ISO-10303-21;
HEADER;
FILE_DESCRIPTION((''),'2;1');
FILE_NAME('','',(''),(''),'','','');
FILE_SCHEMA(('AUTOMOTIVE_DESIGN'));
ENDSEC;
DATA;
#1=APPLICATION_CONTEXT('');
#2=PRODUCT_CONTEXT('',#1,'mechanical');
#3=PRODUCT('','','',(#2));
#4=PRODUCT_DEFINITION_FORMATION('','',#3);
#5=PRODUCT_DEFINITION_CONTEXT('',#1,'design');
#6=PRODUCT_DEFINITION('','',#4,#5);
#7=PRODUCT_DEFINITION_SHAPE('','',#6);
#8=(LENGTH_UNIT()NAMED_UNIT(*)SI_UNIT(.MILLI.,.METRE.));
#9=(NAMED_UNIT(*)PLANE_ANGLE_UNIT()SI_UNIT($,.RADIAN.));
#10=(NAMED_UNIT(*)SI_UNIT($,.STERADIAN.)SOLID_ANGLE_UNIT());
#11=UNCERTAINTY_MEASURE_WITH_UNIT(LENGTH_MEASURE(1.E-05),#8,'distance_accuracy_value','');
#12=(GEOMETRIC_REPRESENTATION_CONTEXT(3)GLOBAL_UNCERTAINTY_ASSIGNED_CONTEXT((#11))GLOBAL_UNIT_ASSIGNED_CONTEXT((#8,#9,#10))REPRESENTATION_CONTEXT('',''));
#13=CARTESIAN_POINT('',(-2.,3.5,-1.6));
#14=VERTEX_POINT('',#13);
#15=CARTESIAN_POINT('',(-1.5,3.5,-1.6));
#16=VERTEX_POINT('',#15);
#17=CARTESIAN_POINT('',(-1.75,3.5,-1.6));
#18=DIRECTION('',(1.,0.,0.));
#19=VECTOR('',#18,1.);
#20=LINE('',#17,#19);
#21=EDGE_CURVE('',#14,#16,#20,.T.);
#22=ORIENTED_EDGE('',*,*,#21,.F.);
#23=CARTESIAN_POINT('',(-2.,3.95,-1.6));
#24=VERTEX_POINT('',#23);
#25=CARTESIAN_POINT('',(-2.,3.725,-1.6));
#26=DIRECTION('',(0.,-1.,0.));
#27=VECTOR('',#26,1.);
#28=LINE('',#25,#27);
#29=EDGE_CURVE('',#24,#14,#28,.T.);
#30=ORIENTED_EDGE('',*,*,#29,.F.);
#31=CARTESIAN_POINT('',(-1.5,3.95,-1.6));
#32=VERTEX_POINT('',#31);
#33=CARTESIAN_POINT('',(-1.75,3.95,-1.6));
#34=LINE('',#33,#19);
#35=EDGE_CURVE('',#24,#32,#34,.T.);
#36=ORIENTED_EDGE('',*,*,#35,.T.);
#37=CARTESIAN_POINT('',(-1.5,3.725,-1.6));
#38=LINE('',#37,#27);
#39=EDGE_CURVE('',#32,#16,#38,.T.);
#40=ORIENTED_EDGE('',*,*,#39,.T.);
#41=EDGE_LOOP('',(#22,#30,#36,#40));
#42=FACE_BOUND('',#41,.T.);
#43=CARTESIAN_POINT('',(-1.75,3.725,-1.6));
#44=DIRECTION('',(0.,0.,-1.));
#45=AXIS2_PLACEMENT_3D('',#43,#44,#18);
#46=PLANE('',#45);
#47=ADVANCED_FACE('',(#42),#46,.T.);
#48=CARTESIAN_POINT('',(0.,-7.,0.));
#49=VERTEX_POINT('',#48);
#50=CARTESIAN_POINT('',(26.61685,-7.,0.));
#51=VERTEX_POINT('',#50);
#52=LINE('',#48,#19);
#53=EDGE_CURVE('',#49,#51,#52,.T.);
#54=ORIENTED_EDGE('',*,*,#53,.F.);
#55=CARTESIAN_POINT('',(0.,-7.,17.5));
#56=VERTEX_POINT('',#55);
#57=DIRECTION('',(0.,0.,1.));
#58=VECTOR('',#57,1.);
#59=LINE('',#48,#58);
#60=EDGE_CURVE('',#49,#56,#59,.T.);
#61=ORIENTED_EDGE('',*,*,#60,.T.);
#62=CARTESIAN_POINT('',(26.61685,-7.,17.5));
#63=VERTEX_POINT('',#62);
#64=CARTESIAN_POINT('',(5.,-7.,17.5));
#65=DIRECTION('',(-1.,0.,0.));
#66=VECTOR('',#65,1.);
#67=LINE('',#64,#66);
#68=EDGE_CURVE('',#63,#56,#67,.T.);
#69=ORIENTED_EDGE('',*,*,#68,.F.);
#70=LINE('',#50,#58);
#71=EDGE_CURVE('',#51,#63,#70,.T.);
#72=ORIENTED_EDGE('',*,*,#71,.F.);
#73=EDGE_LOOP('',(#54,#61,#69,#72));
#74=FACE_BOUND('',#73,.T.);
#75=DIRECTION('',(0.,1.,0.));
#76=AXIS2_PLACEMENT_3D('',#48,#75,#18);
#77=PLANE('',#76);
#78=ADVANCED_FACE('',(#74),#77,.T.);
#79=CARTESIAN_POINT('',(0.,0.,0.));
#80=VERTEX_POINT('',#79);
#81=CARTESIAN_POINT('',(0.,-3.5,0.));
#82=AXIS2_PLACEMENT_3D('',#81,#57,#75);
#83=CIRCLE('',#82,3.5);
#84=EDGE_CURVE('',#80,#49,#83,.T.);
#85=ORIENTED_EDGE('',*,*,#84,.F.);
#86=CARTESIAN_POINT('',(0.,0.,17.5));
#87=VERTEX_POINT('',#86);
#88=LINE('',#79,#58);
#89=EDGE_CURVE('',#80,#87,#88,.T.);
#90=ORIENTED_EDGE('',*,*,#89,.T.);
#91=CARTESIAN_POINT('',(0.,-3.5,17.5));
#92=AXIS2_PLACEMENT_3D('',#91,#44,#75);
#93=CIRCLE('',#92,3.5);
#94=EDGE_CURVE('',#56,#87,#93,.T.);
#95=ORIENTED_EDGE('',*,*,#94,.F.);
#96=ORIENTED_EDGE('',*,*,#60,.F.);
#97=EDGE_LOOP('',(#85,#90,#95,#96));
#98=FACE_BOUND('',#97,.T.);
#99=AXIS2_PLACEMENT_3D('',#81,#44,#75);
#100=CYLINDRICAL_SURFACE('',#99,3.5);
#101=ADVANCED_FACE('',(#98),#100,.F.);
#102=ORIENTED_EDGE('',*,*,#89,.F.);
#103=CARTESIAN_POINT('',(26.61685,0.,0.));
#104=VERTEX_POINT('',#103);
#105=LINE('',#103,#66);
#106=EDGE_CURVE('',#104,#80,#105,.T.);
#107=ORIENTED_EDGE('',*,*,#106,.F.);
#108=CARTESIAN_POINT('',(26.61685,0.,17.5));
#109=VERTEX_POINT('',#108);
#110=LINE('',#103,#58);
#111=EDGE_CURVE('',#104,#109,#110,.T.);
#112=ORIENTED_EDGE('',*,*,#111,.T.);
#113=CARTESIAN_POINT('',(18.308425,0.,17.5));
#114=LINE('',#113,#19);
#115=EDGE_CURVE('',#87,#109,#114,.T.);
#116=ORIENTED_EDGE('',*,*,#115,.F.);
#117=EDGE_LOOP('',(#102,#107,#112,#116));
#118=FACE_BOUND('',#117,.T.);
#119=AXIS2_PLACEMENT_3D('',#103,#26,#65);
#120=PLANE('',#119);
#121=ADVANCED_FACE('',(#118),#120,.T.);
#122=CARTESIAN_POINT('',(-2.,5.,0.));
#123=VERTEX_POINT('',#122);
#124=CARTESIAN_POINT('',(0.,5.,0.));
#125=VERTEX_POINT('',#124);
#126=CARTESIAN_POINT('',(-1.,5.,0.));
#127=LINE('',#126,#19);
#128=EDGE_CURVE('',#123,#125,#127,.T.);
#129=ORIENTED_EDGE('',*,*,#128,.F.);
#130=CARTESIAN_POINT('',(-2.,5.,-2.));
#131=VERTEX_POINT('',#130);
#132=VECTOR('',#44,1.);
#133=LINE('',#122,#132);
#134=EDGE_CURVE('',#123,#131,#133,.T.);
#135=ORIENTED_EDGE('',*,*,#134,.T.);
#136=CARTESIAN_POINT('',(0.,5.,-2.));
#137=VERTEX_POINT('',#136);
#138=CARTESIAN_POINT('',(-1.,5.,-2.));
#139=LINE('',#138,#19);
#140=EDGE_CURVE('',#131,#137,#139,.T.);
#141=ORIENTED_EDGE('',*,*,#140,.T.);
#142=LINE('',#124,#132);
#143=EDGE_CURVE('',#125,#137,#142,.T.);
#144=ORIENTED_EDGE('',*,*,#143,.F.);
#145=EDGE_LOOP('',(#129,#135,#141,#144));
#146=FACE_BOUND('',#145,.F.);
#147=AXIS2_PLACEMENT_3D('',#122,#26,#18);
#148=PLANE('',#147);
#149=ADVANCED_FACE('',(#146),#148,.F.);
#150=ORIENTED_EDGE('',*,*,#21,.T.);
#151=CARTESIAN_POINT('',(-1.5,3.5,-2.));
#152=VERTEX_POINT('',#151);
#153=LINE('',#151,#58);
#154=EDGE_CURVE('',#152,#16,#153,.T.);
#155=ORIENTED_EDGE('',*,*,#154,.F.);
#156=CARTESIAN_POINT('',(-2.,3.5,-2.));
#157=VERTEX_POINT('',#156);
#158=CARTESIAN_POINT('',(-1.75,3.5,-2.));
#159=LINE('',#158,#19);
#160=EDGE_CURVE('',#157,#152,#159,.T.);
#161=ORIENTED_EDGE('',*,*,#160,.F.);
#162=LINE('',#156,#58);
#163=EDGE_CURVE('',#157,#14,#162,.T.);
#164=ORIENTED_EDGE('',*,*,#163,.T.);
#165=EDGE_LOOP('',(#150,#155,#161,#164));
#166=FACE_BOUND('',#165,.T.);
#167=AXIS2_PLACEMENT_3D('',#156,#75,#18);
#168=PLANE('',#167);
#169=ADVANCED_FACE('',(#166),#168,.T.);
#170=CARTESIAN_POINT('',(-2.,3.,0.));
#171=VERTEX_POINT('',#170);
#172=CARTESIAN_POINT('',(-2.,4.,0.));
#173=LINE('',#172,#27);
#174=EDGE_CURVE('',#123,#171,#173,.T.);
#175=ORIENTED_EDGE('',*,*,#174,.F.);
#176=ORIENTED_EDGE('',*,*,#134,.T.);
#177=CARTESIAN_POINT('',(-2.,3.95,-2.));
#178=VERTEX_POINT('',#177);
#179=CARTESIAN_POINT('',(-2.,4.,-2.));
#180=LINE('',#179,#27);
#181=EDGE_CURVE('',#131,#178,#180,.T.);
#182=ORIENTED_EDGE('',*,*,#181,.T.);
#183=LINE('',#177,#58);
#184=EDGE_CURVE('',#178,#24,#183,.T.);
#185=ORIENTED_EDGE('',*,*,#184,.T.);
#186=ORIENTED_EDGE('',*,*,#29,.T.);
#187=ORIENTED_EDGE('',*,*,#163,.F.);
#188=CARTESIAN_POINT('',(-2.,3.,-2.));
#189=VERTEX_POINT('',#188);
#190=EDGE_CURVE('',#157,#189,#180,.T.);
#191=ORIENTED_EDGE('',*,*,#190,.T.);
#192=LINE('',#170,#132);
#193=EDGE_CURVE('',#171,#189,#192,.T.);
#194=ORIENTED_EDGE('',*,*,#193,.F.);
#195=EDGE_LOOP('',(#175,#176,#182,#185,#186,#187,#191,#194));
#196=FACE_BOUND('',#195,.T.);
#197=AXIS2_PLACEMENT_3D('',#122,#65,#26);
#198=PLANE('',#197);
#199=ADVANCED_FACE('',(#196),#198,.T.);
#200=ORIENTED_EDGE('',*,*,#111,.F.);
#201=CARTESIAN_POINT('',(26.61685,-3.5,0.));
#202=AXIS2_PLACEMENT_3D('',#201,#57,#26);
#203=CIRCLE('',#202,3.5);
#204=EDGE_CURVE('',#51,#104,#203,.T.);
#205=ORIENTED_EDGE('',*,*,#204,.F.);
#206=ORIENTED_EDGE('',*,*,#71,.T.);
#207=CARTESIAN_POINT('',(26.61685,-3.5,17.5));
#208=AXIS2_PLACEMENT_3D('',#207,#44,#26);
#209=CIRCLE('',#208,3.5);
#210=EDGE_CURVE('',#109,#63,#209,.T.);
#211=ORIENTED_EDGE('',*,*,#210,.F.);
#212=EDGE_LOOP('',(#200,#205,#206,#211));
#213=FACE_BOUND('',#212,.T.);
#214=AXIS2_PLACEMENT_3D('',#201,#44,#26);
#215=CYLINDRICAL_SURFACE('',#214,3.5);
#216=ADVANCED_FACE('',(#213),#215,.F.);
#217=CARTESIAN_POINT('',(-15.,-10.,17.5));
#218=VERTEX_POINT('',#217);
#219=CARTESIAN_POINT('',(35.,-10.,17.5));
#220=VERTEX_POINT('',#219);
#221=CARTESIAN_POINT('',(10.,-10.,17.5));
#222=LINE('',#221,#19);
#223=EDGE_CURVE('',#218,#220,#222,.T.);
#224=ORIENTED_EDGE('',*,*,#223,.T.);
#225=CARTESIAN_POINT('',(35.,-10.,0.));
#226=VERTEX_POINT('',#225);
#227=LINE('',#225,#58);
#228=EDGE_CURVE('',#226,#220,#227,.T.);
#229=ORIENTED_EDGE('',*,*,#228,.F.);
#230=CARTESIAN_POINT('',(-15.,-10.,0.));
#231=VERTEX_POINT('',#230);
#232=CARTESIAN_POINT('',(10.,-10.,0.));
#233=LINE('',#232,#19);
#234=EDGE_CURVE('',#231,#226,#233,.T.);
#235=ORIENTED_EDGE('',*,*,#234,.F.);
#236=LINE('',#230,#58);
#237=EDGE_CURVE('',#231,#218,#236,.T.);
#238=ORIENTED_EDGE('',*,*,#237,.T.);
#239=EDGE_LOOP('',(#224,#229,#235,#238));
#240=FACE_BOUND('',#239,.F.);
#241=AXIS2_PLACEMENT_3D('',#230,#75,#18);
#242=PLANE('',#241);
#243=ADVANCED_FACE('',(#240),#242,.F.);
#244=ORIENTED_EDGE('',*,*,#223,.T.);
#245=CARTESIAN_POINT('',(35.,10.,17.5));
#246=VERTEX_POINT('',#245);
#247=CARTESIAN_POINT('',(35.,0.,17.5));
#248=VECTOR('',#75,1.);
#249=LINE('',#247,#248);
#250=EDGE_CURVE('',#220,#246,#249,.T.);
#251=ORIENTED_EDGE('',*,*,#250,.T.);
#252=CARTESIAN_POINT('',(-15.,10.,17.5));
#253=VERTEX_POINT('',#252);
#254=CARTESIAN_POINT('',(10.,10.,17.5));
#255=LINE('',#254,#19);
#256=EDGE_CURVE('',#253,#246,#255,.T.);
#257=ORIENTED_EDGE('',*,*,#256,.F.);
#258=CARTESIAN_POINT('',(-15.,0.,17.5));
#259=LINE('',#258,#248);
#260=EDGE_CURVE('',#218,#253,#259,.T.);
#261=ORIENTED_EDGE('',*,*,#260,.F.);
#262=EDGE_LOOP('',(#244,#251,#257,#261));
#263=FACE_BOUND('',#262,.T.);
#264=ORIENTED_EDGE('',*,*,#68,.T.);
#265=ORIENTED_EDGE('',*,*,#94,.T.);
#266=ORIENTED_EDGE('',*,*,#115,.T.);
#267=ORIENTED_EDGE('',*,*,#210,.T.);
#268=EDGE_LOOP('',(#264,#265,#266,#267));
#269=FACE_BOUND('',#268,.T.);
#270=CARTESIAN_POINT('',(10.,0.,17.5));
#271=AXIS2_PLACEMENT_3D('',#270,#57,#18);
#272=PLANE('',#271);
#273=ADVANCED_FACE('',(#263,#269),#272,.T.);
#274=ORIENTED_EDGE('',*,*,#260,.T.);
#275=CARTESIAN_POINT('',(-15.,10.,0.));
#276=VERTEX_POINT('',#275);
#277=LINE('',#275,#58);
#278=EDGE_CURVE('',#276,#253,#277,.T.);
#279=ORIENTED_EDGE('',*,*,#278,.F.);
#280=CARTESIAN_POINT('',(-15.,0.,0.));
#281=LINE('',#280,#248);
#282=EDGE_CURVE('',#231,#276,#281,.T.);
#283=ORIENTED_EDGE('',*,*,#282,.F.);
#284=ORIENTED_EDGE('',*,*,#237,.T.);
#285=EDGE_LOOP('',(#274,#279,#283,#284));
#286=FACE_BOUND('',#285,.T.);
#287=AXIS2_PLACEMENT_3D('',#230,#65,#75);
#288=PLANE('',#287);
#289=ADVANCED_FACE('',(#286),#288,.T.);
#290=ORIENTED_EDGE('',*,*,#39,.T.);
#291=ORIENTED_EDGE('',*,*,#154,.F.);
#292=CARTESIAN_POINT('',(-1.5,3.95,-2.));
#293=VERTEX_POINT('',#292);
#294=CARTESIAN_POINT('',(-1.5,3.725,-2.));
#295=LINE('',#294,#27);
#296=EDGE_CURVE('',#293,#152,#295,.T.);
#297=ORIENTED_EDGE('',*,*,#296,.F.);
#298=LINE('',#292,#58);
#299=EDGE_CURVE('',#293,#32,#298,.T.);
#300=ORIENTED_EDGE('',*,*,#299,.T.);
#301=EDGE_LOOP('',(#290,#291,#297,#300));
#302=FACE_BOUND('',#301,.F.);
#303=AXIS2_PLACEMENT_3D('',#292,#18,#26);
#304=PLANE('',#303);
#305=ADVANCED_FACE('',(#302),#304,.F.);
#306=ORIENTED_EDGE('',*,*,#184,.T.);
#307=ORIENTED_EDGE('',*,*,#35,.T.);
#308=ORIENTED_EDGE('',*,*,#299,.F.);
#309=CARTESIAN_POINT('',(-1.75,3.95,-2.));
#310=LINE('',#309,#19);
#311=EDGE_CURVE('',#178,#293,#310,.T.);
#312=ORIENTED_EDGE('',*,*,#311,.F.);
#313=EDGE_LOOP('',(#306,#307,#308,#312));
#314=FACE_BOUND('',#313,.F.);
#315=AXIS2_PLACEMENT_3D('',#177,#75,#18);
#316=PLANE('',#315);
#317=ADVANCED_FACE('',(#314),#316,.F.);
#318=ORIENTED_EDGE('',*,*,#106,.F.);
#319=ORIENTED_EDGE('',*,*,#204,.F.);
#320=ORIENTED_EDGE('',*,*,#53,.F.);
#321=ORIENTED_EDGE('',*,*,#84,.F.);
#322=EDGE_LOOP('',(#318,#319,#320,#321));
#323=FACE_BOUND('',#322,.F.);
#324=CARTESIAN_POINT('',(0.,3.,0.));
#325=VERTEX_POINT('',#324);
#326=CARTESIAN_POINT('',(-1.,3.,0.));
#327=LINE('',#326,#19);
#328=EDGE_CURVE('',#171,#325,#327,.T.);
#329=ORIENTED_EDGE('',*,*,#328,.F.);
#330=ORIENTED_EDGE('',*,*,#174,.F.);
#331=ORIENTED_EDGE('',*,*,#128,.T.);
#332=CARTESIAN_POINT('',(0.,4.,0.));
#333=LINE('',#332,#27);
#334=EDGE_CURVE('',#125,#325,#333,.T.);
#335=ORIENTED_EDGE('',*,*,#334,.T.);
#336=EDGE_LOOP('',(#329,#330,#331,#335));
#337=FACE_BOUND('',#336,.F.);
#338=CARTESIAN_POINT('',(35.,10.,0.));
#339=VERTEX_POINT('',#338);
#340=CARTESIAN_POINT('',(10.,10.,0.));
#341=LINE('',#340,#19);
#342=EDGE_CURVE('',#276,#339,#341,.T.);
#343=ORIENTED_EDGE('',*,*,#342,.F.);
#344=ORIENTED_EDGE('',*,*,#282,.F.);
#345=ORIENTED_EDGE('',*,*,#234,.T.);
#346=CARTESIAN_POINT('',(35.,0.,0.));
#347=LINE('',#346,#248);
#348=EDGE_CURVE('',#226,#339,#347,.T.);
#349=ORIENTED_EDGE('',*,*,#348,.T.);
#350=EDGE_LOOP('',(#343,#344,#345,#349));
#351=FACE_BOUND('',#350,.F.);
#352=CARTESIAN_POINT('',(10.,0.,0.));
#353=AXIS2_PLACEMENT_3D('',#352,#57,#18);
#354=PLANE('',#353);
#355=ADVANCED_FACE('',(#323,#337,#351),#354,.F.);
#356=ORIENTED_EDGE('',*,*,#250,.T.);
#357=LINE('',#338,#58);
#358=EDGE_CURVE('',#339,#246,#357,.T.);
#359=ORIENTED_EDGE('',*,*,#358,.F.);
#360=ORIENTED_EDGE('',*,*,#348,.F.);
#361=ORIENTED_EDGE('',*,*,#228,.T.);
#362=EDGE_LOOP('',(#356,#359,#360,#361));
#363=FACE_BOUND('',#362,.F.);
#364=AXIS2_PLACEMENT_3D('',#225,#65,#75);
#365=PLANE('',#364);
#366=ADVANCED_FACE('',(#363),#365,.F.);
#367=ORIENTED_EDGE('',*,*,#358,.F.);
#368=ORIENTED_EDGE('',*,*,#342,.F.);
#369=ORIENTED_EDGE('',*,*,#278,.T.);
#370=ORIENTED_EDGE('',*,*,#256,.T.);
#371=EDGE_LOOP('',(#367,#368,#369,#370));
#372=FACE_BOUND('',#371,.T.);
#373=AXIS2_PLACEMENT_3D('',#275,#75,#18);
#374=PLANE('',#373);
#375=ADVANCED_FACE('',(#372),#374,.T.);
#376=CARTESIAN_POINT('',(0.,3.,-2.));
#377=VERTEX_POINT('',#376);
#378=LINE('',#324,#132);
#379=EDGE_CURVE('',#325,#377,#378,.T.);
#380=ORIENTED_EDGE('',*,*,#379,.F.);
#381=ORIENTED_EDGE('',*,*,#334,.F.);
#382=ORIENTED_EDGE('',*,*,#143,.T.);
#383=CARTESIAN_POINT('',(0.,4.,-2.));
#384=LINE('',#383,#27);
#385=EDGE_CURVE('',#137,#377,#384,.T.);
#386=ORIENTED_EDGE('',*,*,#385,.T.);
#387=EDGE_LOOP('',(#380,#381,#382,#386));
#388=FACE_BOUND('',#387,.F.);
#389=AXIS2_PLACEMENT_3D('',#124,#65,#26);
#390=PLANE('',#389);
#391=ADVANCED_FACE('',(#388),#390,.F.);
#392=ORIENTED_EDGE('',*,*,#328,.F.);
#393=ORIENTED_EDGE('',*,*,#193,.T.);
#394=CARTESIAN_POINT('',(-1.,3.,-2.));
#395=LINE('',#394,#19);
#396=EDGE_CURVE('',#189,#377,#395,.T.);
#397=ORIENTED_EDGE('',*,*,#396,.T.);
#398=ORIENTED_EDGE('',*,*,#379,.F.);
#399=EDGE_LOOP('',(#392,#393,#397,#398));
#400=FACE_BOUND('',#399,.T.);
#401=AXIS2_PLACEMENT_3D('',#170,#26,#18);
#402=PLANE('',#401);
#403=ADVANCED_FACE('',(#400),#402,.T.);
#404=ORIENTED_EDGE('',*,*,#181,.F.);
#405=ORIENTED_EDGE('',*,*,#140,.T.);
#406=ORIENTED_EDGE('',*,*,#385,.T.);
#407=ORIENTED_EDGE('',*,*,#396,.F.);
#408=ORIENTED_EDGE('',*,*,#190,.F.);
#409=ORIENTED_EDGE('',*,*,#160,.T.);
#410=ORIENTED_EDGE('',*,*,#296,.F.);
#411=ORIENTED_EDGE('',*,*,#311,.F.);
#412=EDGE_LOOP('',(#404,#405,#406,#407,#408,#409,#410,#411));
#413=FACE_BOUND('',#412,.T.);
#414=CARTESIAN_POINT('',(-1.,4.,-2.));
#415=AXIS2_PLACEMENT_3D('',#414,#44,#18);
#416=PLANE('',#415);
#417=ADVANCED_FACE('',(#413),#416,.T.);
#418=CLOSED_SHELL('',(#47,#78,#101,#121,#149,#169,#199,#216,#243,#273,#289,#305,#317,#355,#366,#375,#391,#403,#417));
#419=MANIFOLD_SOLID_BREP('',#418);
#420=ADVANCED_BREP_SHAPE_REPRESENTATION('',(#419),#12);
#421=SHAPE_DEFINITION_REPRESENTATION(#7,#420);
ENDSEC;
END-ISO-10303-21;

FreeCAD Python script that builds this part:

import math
import FreeCAD as App
import Part
import Sketcher
from FreeCAD import Vector

doc = App.newDocument("Part")
body = doc.addObject("PartDesign::Body", "Body")

sketch1 = doc.addObject("Sketcher::SketchObject", "Sketch")
body.addObject(sketch1)
sketch1.AttachmentSupport = (doc.XY_Plane, [""])
sketch1.MapMode = "FlatFace"
sketch1.addGeometry([
    Part.LineSegment(Vector(-15, 10, 0), Vector(-15, -10, 0)),
    Part.LineSegment(Vector(-15, -10, 0), Vector(35, -10, 0)),
    Part.LineSegment(Vector(35, -10, 0), Vector(35, 10, 0)),
    Part.LineSegment(Vector(35, 10, 0), Vector(-15, 10, 0)),
], False)
sketch1.addConstraint([
    Sketcher.Constraint("Coincident", 0, 2, 1, 1),
    Sketcher.Constraint("Coincident", 1, 2, 2, 1),
    Sketcher.Constraint("Coincident", 2, 2, 3, 1),
    Sketcher.Constraint("Coincident", 3, 2, 0, 1),
    Sketcher.Constraint("Vertical", 0),
    Sketcher.Constraint("Horizontal", 1),
    Sketcher.Constraint("Vertical", 2),
    Sketcher.Constraint("Horizontal", 3),
    Sketcher.Constraint("DistanceX", 1, 1, 1, 2, 50.0),
    Sketcher.Constraint("DistanceY", 0, 2, 0, 1, 20.0),
    Sketcher.Constraint("DistanceX", 0, 2, -1, 1, 15.0),
    Sketcher.Constraint("DistanceY", 0, 2, -1, 1, 10.0),
])
pad1 = doc.addObject("PartDesign::Pad", "Pad")
body.addObject(pad1)
pad1.Profile = sketch1
pad1.Length = 17.5

sketch2 = doc.addObject("Sketcher::SketchObject", "Sketch001")
body.addObject(sketch2)
sketch2.AttachmentSupport = (doc.XY_Plane, [""])
sketch2.MapMode = "FlatFace"
sketch2.addGeometry([
    Part.ArcOfCircle(Part.Circle(Vector(0, -3.5, 0), Vector(0, 0, 1), 3.5), math.radians(90), math.radians(270)),
    Part.LineSegment(Vector(0, -7, 0), Vector(26.6, -7, 0)),
    Part.ArcOfCircle(Part.Circle(Vector(26.6, -3.5, 0), Vector(0, 0, 1), 3.5), math.radians(-90), math.radians(90)),
    Part.LineSegment(Vector(26.6, 0, 0), Vector(0, 0, 0)),
], False)
sketch2.addConstraint([
    Sketcher.Constraint("Tangent", 0, 2, 1, 1),
    Sketcher.Constraint("Tangent", 1, 2, 2, 1),
    Sketcher.Constraint("Tangent", 2, 2, 3, 1),
    Sketcher.Constraint("Tangent", 3, 2, 0, 1),
    Sketcher.Constraint("Horizontal", 1),
    Sketcher.Constraint("Horizontal", 3),
    Sketcher.Constraint("Coincident", 3, 2, -1, 1),
    Sketcher.Constraint("Radius", 0, 3.5),
    Sketcher.Constraint("DistanceX", 1, 1, 1, 2, 26.61685),
])
pocket1 = doc.addObject("PartDesign::Pocket", "Pocket")
body.addObject(pocket1)
pocket1.Profile = sketch2
pocket1.Length = 50
pocket1.Reversed = True

sketch3 = doc.addObject("Sketcher::SketchObject", "Sketch002")
body.addObject(sketch3)
sketch3.AttachmentSupport = (doc.XY_Plane, [""])
sketch3.MapMode = "FlatFace"
sketch3.addGeometry([
    Part.LineSegment(Vector(-2, 3, 0), Vector(-2, 5, 0)),
    Part.LineSegment(Vector(-2, 5, 0), Vector(0, 5, 0)),
    Part.LineSegment(Vector(0, 5, 0), Vector(0, 3, 0)),
    Part.LineSegment(Vector(0, 3, 0), Vector(-2, 3, 0)),
], False)
sketch3.addConstraint([
    Sketcher.Constraint("Coincident", 0, 2, 1, 1),
    Sketcher.Constraint("Coincident", 1, 2, 2, 1),
    Sketcher.Constraint("Coincident", 2, 2, 3, 1),
    Sketcher.Constraint("Coincident", 3, 2, 0, 1),
    Sketcher.Constraint("Vertical", 0),
    Sketcher.Constraint("Horizontal", 1),
    Sketcher.Constraint("Vertical", 2),
    Sketcher.Constraint("Horizontal", 3),
    Sketcher.Constraint("PointOnObject", 1, 2, -2),
    Sketcher.Constraint("Equal", 3, 0),
    Sketcher.Constraint("DistanceX", 1, 1, 1, 2, 2.0),
    Sketcher.Constraint("DistanceY", -1, 1, 0, 2, 5.0),
])
pad2 = doc.addObject("PartDesign::Pad", "Pad001")
body.addObject(pad2)
pad2.Profile = sketch3
pad2.Length = 2
pad2.Reversed = True

sketch4 = doc.addObject("Sketcher::SketchObject", "Sketch003")
body.addObject(sketch4)
sketch4.AttachmentSupport = (doc.XY_Plane, [""])
sketch4.MapMode = "FlatFace"
sketch4.AttachmentOffset = App.Placement(Vector(0, 0, -2), App.Rotation())
sketch4.addGeometry([
    Part.LineSegment(Vector(-2, 3.5, 0), Vector(-2, 3.95, 0)),
    Part.LineSegment(Vector(-2, 3.95, 0), Vector(-1.5, 3.95, 0)),
    Part.LineSegment(Vector(-1.5, 3.95, 0), Vector(-1.5, 3.5, 0)),
    Part.LineSegment(Vector(-1.5, 3.5, 0), Vector(-2, 3.5, 0)),
], False)
sketch4.addConstraint([
    Sketcher.Constraint("Coincident", 0, 2, 1, 1),
    Sketcher.Constraint("Coincident", 1, 2, 2, 1),
    Sketcher.Constraint("Coincident", 2, 2, 3, 1),
    Sketcher.Constraint("Coincident", 3, 2, 0, 1),
    Sketcher.Constraint("Vertical", 0),
    Sketcher.Constraint("Horizontal", 1),
    Sketcher.Constraint("Vertical", 2),
    Sketcher.Constraint("Horizontal", 3),
    Sketcher.Constraint("DistanceX", 1, 1, 1, 2, 0.5),
    Sketcher.Constraint("DistanceX", 0, 2, -1, 1, 2.0),
    Sketcher.Constraint("DistanceY", 0, 1, 0, 2, 0.45),
    Sketcher.Constraint("DistanceY", -1, 1, 2, 2, 3.5),
])
pocket2 = doc.addObject("PartDesign::Pocket", "Pocket001")
body.addObject(pocket2)
pocket2.Profile = sketch4
pocket2.Length = 0.4
pocket2.Reversed = True

doc.recompute()
